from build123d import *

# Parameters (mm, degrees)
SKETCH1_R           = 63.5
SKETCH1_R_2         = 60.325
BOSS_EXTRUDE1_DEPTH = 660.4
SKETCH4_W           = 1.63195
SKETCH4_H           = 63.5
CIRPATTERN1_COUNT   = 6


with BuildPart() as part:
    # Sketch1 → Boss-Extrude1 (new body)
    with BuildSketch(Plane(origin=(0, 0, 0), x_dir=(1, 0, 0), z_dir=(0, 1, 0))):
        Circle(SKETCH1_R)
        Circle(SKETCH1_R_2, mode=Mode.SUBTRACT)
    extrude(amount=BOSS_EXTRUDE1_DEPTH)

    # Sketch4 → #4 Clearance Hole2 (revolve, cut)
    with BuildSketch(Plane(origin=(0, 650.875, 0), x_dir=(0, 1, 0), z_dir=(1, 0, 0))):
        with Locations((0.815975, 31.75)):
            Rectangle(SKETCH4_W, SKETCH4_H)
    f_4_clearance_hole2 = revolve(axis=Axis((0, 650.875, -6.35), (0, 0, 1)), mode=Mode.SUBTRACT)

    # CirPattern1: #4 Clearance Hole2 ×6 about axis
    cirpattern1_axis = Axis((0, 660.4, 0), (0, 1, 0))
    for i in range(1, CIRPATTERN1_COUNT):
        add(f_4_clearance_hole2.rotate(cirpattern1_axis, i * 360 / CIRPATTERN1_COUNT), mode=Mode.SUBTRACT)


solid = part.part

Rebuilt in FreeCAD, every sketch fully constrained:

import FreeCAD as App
import Part
import Sketcher
from FreeCAD import Vector
Q = App.Units.Quantity

doc = App.newDocument("Part")
params = doc.addObject("Spreadsheet::Sheet", "Params")
for row, (alias, value) in enumerate([
    ("sketch1_diameter", "5 in"),
    ("sketch1_diameter2", "4.75 in"),
    ("pad1_length", "26 in"),
    ("sketch2_height", "2.5 in"),
    ("groove_angle", "360 deg"),
], start=1):
    params.set(f"A{row}", alias)
    params.set(f"B{row}", "=" + value)
    params.setAlias(f"B{row}", alias)

body = doc.addObject("PartDesign::Body", "Body")

sketch1 = doc.addObject("Sketcher::SketchObject", "Sketch")
body.addObject(sketch1)
sketch1.AttachmentSupport = (doc.XZ_Plane, [""])
sketch1.MapMode = "FlatFace"
sketch1.addGeometry(Part.Circle(Vector(0, 0, 0), Vector(0, 0, 1), 64), False)
sketch1.addGeometry(Part.Circle(Vector(0, 0, 0), Vector(0, 0, 1), 60), False)
sketch1.addConstraint(Sketcher.Constraint("Coincident", 0, 3, -1, 1))
sketch1.addConstraint(Sketcher.Constraint("Coincident", 1, 3, -1, 1))
sketch1.addConstraint(Sketcher.Constraint("Diameter", 0, Q("5 in")))
sketch1.addConstraint(Sketcher.Constraint("Diameter", 1, Q("4.75 in")))
sketch1.setExpression("Constraints[2]", "Params.sketch1_diameter")
sketch1.setExpression("Constraints[3]", "Params.sketch1_diameter2")
pad1 = doc.addObject("PartDesign::Pad", "Pad")
body.addObject(pad1)
pad1.Profile = sketch1
pad1.setExpression("Length", "Params.pad1_length")
pad1.Reversed = True

sketch2 = doc.addObject("Sketcher::SketchObject", "Sketch001")
body.addObject(sketch2)
sketch2.AttachmentSupport = (doc.YZ_Plane, [""])
sketch2.MapMode = "FlatFace"
sketch2.addGeometry(Part.LineSegment(Vector(650.9, 63.5, 0), Vector(650.9, 0, 0)), False)
sketch2.addGeometry(Part.LineSegment(Vector(650.9, 0, 0), Vector(652.5, 0, 0)), False)
sketch2.addGeometry(Part.LineSegment(Vector(652.5, 0, 0), Vector(652.5, 63.5, 0)), False)
sketch2.addGeometry(Part.LineSegment(Vector(652.5, 63.5, 0), Vector(650.9, 63.5, 0)), False)
sketch2.addGeometry(Part.LineSegment(Vector(650.9, 0, 0), Vector(650.9, 63.5, 0)), True)
sketch2.addConstraint(Sketcher.Constraint("Coincident", 0, 2, 1, 1))
sketch2.addConstraint(Sketcher.Constraint("Coincident", 1, 2, 2, 1))
sketch2.addConstraint(Sketcher.Constraint("Coincident", 2, 2, 3, 1))
sketch2.addConstraint(Sketcher.Constraint("Coincident", 3, 2, 0, 1))
sketch2.addConstraint(Sketcher.Constraint("Vertical", 0))
sketch2.addConstraint(Sketcher.Constraint("Horizontal", 1))
sketch2.addConstraint(Sketcher.Constraint("Vertical", 2))
sketch2.addConstraint(Sketcher.Constraint("Horizontal", 3))
sketch2.addConstraint(Sketcher.Constraint("Vertical", 4))
sketch2.addConstraint(Sketcher.Constraint("Coincident", 4, 1, 0, 2))
sketch2.addConstraint(Sketcher.Constraint("PointOnObject", 0, 2, -1))
sketch2.addConstraint(Sketcher.Constraint("Horizontal", 2, 2, 4, 2))
sketch2.addConstraint(Sketcher.Constraint("DistanceY", 0, 2, 0, 1, Q("2.5 in")))
sketch2.addConstraint(Sketcher.Constraint("DistanceX", -1, 1, 0, 2, Q("25.625 in")))
sketch2.addConstraint(Sketcher.Constraint("DistanceX", 1, 1, 1, 2, 1.63195))
sketch2.setExpression("Constraints[12]", "Params.sketch2_height")
groove = doc.addObject("PartDesign::Groove", "Groove")
body.addObject(groove)
groove.Profile = sketch2
groove.ReferenceAxis = (sketch2, ["Axis0"])
groove.setExpression("Angle", "Params.groove_angle")
doc.recompute()

polarpattern = doc.addObject("PartDesign::PolarPattern", "PolarPattern")
body.addObject(polarpattern)
polarpattern.Originals = [groove]
polarpattern.Axis = (doc.Y_Axis, [""])
polarpattern.Angle = 360
polarpattern.Occurrences = 6
body.Tip = polarpattern

doc.recompute()
